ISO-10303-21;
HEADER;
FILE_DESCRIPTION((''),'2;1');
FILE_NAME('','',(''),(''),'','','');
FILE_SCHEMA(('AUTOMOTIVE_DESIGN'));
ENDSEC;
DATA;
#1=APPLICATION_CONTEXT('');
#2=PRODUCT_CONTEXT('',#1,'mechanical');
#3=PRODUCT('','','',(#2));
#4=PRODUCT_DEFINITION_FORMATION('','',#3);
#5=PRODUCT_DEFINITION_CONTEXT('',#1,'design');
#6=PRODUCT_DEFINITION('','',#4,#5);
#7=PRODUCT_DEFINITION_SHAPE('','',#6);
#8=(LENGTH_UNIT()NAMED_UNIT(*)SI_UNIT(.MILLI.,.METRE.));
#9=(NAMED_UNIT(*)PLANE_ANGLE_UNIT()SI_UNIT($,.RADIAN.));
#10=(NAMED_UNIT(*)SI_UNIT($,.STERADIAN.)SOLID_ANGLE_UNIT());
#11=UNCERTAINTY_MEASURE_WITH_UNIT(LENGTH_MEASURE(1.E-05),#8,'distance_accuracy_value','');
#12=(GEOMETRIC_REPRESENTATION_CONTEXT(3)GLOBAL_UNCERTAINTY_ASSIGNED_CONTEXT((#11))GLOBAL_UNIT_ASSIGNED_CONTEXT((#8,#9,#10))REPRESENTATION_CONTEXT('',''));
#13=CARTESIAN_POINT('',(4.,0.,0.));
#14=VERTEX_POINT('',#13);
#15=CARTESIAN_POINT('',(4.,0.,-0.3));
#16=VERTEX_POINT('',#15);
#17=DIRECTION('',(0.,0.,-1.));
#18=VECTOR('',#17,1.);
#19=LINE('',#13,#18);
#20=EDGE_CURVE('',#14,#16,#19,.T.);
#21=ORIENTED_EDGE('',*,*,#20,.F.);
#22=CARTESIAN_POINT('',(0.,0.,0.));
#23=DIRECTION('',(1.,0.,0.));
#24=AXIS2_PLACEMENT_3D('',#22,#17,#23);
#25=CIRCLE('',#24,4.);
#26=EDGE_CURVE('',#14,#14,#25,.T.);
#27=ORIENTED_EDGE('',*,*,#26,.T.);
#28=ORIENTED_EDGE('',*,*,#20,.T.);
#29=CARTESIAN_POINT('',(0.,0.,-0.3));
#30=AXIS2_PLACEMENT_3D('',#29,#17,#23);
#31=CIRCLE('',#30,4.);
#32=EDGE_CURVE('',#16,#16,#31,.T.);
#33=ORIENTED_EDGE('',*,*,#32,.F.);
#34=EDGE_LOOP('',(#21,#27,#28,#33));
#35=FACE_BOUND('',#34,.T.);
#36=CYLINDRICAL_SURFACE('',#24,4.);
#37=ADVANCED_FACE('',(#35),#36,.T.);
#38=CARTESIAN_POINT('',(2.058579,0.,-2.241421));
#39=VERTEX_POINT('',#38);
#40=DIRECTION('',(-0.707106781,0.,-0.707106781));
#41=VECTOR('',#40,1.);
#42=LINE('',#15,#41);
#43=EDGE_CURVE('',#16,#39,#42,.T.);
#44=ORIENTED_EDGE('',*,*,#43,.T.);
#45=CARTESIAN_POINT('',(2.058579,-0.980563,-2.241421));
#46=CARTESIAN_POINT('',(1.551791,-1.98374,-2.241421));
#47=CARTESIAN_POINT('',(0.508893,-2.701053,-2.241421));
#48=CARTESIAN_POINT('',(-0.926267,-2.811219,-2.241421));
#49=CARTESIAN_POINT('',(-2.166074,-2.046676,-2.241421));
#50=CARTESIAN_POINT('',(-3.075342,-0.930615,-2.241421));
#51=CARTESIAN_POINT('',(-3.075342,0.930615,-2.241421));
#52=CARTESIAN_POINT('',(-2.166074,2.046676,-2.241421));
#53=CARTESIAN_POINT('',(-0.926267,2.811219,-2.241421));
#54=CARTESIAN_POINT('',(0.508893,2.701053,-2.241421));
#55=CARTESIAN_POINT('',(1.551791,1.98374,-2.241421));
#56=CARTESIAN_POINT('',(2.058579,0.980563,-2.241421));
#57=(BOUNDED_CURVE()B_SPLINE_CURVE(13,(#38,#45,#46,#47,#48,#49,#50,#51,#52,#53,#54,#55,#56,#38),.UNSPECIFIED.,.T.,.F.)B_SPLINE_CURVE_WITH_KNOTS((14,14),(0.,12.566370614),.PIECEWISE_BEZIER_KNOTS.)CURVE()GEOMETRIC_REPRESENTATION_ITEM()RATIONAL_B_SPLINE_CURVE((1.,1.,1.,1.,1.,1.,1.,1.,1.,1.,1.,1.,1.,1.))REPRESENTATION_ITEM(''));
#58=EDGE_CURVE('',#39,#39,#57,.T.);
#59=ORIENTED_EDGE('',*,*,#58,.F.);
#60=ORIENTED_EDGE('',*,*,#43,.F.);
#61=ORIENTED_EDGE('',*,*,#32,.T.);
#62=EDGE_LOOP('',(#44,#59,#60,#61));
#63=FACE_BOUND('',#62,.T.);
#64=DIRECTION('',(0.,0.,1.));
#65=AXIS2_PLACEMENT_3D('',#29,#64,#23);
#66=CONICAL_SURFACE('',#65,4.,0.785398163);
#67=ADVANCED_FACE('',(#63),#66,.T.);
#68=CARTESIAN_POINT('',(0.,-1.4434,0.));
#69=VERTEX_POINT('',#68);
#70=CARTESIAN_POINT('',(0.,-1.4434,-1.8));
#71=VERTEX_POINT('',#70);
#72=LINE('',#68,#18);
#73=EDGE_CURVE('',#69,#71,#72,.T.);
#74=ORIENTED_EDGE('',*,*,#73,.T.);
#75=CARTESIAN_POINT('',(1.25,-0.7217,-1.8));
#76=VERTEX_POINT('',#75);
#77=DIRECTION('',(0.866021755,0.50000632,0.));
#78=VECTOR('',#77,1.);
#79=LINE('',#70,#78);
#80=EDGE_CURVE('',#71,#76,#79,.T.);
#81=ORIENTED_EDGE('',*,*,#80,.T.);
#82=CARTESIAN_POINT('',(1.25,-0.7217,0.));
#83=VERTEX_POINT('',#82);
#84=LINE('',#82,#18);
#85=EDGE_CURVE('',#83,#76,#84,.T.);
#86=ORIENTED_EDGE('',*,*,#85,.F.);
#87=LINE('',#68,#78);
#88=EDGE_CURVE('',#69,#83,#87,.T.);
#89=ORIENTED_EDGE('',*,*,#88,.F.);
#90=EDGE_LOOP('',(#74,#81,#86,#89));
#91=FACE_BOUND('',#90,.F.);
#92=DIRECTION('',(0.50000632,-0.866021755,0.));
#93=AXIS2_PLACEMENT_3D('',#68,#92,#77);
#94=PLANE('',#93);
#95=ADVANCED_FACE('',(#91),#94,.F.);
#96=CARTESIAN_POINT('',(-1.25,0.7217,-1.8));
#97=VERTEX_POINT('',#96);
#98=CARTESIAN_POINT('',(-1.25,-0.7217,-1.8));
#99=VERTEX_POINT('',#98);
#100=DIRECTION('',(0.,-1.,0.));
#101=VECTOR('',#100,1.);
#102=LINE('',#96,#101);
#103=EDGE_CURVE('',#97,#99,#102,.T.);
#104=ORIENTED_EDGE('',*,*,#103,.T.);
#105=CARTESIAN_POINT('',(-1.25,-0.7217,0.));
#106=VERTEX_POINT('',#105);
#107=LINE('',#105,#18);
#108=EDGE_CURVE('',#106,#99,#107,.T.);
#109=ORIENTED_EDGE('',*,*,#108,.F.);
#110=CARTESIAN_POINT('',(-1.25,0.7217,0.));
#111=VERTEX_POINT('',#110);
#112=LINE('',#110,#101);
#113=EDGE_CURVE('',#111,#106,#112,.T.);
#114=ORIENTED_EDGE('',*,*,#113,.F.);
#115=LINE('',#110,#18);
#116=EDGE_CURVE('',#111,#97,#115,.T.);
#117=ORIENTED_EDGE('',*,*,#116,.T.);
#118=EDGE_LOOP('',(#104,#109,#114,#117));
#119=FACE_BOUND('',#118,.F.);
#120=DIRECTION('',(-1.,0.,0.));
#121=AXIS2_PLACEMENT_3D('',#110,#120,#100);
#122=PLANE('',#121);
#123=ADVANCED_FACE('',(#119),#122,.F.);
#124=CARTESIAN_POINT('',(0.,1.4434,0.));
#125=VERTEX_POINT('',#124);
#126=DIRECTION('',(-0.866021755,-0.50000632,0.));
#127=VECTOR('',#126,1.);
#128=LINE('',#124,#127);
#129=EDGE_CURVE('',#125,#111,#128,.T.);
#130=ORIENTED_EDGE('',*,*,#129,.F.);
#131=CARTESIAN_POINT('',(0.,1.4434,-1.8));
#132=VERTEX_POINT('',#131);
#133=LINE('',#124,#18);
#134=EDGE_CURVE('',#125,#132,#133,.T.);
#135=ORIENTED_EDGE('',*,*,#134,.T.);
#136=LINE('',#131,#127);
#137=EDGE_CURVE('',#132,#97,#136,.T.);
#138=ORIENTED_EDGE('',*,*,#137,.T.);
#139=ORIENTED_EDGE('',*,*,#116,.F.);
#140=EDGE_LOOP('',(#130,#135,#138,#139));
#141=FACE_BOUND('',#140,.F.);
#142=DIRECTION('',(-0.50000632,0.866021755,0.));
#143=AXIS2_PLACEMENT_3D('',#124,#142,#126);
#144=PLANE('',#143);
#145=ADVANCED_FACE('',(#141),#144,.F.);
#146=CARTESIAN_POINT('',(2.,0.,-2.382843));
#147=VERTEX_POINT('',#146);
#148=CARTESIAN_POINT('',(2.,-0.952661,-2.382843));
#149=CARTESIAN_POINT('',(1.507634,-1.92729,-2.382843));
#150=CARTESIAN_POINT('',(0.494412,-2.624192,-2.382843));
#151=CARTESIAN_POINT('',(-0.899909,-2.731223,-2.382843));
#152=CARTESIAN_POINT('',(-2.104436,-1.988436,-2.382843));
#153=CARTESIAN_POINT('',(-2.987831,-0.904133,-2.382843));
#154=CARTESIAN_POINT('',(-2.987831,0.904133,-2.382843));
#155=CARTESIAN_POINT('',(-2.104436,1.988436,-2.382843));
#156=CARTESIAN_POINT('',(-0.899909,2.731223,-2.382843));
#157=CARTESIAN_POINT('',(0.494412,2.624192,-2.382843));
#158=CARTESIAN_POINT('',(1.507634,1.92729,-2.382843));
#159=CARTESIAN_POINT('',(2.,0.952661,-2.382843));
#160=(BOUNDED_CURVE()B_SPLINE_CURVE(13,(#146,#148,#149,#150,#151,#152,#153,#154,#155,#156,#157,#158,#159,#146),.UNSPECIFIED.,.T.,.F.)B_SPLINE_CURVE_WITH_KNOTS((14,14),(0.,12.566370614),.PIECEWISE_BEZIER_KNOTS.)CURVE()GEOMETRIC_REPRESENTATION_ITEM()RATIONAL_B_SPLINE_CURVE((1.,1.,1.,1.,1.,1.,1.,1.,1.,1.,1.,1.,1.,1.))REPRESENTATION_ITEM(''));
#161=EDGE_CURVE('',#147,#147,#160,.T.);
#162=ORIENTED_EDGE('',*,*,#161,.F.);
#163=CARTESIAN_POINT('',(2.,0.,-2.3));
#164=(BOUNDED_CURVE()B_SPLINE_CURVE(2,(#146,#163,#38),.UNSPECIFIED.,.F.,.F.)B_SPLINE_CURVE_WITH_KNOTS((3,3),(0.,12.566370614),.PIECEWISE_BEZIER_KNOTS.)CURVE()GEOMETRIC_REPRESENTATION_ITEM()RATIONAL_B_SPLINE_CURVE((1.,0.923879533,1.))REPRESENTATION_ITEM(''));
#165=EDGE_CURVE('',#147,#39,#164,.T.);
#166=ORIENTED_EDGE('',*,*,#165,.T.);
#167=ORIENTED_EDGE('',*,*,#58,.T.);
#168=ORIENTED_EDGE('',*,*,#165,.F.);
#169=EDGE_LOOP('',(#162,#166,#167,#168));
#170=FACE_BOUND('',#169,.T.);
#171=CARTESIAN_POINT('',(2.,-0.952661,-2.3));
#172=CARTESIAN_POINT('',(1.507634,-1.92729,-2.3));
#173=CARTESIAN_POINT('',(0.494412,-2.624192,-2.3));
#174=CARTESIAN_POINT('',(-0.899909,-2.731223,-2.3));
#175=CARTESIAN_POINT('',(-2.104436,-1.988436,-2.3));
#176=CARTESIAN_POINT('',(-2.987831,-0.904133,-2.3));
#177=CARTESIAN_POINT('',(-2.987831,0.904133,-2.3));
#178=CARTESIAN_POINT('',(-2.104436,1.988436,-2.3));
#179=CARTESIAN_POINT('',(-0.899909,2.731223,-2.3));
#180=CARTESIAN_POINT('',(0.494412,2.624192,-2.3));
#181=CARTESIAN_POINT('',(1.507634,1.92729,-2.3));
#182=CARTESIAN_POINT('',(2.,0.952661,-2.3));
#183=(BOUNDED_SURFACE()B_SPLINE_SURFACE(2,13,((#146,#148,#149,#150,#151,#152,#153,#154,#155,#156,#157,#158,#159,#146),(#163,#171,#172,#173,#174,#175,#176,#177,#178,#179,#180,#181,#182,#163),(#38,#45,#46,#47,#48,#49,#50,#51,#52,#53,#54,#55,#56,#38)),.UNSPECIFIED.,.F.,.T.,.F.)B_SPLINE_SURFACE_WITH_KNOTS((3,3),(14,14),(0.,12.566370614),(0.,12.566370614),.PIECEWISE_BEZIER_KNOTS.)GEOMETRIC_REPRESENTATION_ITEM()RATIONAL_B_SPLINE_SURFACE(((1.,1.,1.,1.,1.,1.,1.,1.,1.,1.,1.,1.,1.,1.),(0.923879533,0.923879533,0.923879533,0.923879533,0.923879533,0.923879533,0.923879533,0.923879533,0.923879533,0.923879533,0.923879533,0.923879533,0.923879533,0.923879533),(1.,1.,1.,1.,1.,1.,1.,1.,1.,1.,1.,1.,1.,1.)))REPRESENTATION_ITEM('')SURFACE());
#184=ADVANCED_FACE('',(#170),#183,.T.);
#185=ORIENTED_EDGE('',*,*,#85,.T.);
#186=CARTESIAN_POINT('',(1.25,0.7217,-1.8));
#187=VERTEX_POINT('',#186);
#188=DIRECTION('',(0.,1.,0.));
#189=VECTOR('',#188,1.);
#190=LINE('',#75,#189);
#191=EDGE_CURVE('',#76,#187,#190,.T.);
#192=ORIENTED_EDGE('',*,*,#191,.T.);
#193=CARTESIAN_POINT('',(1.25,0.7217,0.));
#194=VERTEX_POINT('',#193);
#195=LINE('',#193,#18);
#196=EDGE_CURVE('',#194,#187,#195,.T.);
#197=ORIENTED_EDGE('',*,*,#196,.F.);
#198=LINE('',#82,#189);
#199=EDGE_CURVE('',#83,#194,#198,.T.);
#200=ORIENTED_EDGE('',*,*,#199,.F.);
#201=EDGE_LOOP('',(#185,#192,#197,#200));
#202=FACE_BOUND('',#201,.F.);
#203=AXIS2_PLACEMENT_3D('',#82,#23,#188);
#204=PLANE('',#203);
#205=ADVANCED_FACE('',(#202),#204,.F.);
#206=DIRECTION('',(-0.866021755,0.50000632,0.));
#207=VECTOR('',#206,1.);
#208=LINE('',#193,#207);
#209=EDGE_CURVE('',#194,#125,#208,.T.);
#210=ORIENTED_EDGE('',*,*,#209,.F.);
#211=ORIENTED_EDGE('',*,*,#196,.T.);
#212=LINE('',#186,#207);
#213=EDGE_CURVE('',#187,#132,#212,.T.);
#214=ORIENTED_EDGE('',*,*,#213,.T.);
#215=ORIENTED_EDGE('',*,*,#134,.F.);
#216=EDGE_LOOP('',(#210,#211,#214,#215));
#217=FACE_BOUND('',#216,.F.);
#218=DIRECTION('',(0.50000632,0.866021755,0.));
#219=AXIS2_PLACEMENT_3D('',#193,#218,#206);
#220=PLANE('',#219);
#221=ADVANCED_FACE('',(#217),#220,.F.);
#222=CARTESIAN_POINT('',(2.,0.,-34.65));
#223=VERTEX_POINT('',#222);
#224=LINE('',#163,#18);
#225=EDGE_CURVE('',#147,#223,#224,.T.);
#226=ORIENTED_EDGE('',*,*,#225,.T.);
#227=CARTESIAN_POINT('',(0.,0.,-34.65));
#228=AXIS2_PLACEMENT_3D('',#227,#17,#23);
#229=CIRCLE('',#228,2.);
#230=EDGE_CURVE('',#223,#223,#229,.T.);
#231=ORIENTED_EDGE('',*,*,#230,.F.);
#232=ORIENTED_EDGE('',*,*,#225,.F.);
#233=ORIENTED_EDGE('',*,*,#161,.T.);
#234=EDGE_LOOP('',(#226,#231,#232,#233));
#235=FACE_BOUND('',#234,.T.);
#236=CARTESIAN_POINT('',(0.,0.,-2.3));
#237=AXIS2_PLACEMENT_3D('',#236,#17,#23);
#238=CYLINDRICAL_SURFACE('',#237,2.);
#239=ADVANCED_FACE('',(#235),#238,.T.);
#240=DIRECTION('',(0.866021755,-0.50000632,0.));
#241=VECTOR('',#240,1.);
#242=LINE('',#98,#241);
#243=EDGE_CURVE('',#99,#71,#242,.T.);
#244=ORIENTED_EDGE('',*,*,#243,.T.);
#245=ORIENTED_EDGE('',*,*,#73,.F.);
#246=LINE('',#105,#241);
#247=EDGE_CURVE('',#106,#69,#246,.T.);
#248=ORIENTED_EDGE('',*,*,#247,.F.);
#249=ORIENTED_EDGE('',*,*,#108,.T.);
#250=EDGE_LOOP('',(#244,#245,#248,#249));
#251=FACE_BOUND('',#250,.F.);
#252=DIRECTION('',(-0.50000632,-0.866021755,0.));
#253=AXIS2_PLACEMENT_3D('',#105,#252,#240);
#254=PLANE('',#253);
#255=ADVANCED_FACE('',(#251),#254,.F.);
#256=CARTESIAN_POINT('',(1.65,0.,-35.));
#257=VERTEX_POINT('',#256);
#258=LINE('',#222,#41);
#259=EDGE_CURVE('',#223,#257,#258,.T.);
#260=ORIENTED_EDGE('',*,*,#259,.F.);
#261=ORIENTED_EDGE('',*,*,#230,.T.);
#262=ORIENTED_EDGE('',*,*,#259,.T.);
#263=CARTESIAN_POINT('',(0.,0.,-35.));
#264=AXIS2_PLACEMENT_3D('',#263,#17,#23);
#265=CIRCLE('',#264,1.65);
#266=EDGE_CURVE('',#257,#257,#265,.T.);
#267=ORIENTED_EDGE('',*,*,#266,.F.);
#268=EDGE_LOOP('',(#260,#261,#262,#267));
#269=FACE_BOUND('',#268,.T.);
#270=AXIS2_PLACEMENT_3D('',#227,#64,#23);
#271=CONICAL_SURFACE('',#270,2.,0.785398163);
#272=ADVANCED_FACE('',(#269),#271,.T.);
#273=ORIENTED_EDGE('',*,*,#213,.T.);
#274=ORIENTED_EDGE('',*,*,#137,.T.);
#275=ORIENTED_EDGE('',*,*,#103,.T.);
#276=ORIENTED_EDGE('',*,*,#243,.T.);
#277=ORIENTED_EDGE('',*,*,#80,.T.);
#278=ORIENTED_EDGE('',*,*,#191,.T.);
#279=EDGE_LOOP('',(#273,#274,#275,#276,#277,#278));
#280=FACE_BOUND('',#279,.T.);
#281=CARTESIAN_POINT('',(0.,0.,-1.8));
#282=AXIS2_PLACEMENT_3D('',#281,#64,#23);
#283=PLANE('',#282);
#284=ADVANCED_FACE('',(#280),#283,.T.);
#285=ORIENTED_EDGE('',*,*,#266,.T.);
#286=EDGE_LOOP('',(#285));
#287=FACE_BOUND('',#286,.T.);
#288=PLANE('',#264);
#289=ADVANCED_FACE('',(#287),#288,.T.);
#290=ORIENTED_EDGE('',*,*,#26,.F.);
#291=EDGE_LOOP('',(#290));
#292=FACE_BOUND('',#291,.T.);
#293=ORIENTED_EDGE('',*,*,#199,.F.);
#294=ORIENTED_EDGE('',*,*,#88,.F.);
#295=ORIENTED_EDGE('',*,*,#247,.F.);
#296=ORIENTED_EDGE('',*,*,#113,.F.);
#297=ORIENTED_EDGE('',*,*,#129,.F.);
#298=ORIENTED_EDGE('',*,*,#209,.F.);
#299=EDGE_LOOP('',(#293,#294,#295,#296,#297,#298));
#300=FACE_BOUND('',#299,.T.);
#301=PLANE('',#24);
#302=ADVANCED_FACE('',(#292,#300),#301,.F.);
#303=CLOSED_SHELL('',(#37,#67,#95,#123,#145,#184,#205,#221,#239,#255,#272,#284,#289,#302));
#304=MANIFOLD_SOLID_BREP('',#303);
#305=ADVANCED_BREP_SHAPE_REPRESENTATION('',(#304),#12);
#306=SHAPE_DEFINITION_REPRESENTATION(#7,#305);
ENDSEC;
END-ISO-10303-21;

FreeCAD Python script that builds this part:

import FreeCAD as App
import Part
import Sketcher
from FreeCAD import Vector
Q = App.Units.Quantity


def edges_at(feature, points):
    """Names of the edges that pass closest to the given points."""
    edges = feature.Shape.Edges
    near = lambda p: min(range(len(edges)), key=lambda i: edges[i].distToShape(Part.Vertex(*p))[0])
    return sorted({f"Edge{near(p) + 1}" for p in points})

doc = App.newDocument("Part")
body = doc.addObject("PartDesign::Body", "Body")

# Sketch on XZ plane
sketch1 = body.newObject("Sketcher::SketchObject", "Sketch")
sketch1.AttachmentSupport = (doc.getObject("XZ_Plane"), [""])
sketch1.MapMode = "FlatFace"
sketch1.addGeometry(Part.LineSegment(Vector(2, -2.3, 0), Vector(2, -35, 0)), False)
sketch1.addGeometry(Part.LineSegment(Vector(2, -35, 0), Vector(0, -35, 0)), False)
sketch1.addGeometry(Part.LineSegment(Vector(0, -35, 0), Vector(0, 0, 0)), False)
sketch1.addGeometry(Part.LineSegment(Vector(0, 0, 0), Vector(4, 0, 0)), False)
sketch1.addGeometry(Part.LineSegment(Vector(4, 0, 0), Vector(4, -0.3, 0)), False)
sketch1.addGeometry(Part.LineSegment(Vector(4, -0.3, 0), Vector(2, -2.3, 0)), False)
sketch1.addConstraint(Sketcher.Constraint("Coincident", 0, 2, 1, 1))
sketch1.addConstraint(Sketcher.Constraint("Coincident", 1, 2, 2, 1))
sketch1.addConstraint(Sketcher.Constraint("Coincident", 2, 2, 3, 1))
sketch1.addConstraint(Sketcher.Constraint("Coincident", 3, 2, 4, 1))
sketch1.addConstraint(Sketcher.Constraint("Coincident", 4, 2, 5, 1))
sketch1.addConstraint(Sketcher.Constraint("Coincident", 5, 2, 0, 1))
sketch1.addConstraint(Sketcher.Constraint("Vertical", 0))
sketch1.addConstraint(Sketcher.Constraint("Horizontal", 1))
sketch1.addConstraint(Sketcher.Constraint("Vertical", 2))
sketch1.addConstraint(Sketcher.Constraint("Horizontal", 3))
sketch1.addConstraint(Sketcher.Constraint("Vertical", 4))
sketch1.addConstraint(Sketcher.Constraint("Coincident", 2, 2, -1, 1))
sketch1.addConstraint(Sketcher.Constraint("DistanceX", 1, 2, 1, 1, 2.0))
sketch1.addConstraint(Sketcher.Constraint("DistanceX", 3, 1, 3, 2, 4.0))
sketch1.addConstraint(Sketcher.Constraint("DistanceY", 2, 1, 2, 2, 35.0))
sketch1.addConstraint(Sketcher.Constraint("DistanceY", 4, 2, 4, 1, 0.3))
sketch1.addConstraint(Sketcher.Constraint("DistanceY", 5, 2, 4, 2, 2.0))
revolution = body.newObject("PartDesign::Revolution", "Revolution")
revolution.Profile = sketch1
revolution.ReferenceAxis = (sketch1, ["V_Axis"])
revolution.Angle = 360

# Sketch on XY plane
sketch2 = body.newObject("Sketcher::SketchObject", "Sketch001")
sketch2.AttachmentSupport = (doc.getObject("XY_Plane"), [""])
sketch2.MapMode = "FlatFace"
sketch2.addGeometry(Part.LineSegment(Vector(0, 1.4434, 0), Vector(-1.25, 0.7217, 0)), False)
sketch2.addGeometry(Part.LineSegment(Vector(-1.25, 0.7217, 0), Vector(-1.25, -0.7217, 0)), False)
sketch2.addGeometry(Part.LineSegment(Vector(-1.25, -0.7217, 0), Vector(0, -1.4434, 0)), False)
sketch2.addGeometry(Part.LineSegment(Vector(0, -1.4434, 0), Vector(1.25, -0.7217, 0)), False)
sketch2.addGeometry(Part.LineSegment(Vector(1.25, -0.7217, 0), Vector(1.25, 0.7217, 0)), False)
sketch2.addGeometry(Part.LineSegment(Vector(1.25, 0.7217, 0), Vector(0, 1.4434, 0)), False)
sketch2.addConstraint(Sketcher.Constraint("Coincident", 0, 2, 1, 1))
sketch2.addConstraint(Sketcher.Constraint("Coincident", 1, 2, 2, 1))
sketch2.addConstraint(Sketcher.Constraint("Coincident", 2, 2, 3, 1))
sketch2.addConstraint(Sketcher.Constraint("Coincident", 3, 2, 4, 1))
sketch2.addConstraint(Sketcher.Constraint("Coincident", 4, 2, 5, 1))
sketch2.addConstraint(Sketcher.Constraint("Coincident", 5, 2, 0, 1))
sketch2.addConstraint(Sketcher.Constraint("Vertical", 1))
sketch2.addConstraint(Sketcher.Constraint("Vertical", 4))
sketch2.addConstraint(Sketcher.Constraint("Symmetric", 0, 2, 3, 2, -1, 1))
sketch2.addConstraint(Sketcher.Constraint("Symmetric", 2, 2, 5, 2, -1, 1))
sketch2.addConstraint(Sketcher.Constraint("PointOnObject", 2, 2, -2))
sketch2.addConstraint(Sketcher.Constraint("Parallel", 2, 5))
sketch2.addConstraint(Sketcher.Constraint("Horizontal", 1, 2, 3, 2))
sketch2.addConstraint(Sketcher.Constraint("DistanceX", 1, 2, 3, 2, 2.5))
sketch2.addConstraint(Sketcher.Constraint("Angle", 0, Q("-149.9996 deg")))
sketch2.addConstraint(Sketcher.Constraint("DistanceY", 1, 2, 1, 1, 1.4434))
pocket1 = body.newObject("PartDesign::Pocket", "Pocket")
pocket1.Profile = sketch2
pocket1.Length = 1.8
doc.recompute()

fillet = body.newObject("PartDesign::Fillet", "Fillet")
fillet.Base = (pocket1, edges_at(pocket1, [(-2, 0, -2.3)]))
fillet.Radius = 0.2
doc.recompute()

chamfer = body.newObject("PartDesign::Chamfer", "Chamfer")
chamfer.Base = (fillet, edges_at(fillet, [(-2, 0, -35)]))
chamfer.Size = 0.35

doc.recompute()
